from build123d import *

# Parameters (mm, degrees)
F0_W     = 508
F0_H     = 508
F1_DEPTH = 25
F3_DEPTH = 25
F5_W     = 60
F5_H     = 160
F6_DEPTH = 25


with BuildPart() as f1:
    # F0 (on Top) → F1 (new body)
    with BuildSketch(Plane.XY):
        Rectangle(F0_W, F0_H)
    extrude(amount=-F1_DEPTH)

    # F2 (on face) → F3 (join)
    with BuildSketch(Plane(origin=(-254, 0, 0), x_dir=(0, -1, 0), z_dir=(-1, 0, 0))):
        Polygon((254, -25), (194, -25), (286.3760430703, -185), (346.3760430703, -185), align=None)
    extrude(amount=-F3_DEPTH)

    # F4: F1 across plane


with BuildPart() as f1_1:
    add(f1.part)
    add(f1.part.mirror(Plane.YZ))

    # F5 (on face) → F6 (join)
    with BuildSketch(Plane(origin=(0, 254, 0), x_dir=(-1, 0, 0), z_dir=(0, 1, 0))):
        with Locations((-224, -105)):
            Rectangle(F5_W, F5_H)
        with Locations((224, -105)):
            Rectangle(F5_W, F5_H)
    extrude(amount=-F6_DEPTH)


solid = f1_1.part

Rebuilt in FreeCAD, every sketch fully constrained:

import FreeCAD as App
import Part
import Sketcher

V = App.Vector
Q = App.Units.Quantity


def add_polygon(sketch, points):
    """Adds a closed chain of lines whose ends are joined by coincident constraints."""
    first, n = sketch.GeometryCount, len(points)
    for a, b in zip(points, points[1:] + points[:1]):
        sketch.addGeometry(Part.LineSegment(App.Vector(*a, 0), App.Vector(*b, 0)), False)
    for i in range(n):
        sketch.addConstraint(Sketcher.Constraint("Coincident", first + i, 2, first + (i + 1) % n, 1))

doc = App.newDocument("Part")
body = doc.addObject("PartDesign::Body", "Body")

sketch1 = body.newObject("Sketcher::SketchObject", "Sketch")
sketch1.AttachmentSupport = (doc.getObject("XY_Plane"), [""])
sketch1.MapMode = "FlatFace"
add_polygon(sketch1, [(-254, 254), (-254, -254), (254, -254), (254, 254)])
sketch1.addConstraint(Sketcher.Constraint("Vertical", 0))
sketch1.addConstraint(Sketcher.Constraint("Horizontal", 1))
sketch1.addConstraint(Sketcher.Constraint("Vertical", 2))
sketch1.addConstraint(Sketcher.Constraint("Horizontal", 3))
sketch1.addConstraint(Sketcher.Constraint("Symmetric", 0, 2, 2, 2, -1, 1))
sketch1.addConstraint(Sketcher.Constraint("Equal", 3, 0))
sketch1.addConstraint(Sketcher.Constraint("DistanceX", 1, 1, 1, 2, Q("508 mm")))
pad1 = body.newObject("PartDesign::Pad", "Pad")
pad1.Profile = sketch1
pad1.Length = 25
pad1.Reversed = True

sketch2 = body.newObject("Sketcher::SketchObject", "Sketch001")
sketch2.AttachmentSupport = (doc.getObject("YZ_Plane"), [""])
sketch2.MapMode = "FlatFace"
sketch2.AttachmentOffset = App.Placement(V(0, 0, -254), App.Rotation())
add_polygon(sketch2, [(-254, -25), (-194, -25), (-286.376043, -185), (-346.376043, -185)])
sketch2.addConstraint(Sketcher.Constraint("Horizontal", 0))
sketch2.addConstraint(Sketcher.Constraint("Horizontal", 2))
sketch2.addConstraint(Sketcher.Constraint("Parallel", 1, 3))
sketch2.addConstraint(Sketcher.Constraint("DistanceX", 0, 1, 0, 2, Q("60 mm")))
sketch2.addConstraint(Sketcher.Constraint("Angle", 1, Q("-120 deg")))
sketch2.addConstraint(Sketcher.Constraint("DistanceX", 0, 2, -1, 1, Q("194 mm")))
sketch2.addConstraint(Sketcher.Constraint("DistanceY", 0, 2, -1, 1, Q("25 mm")))
sketch2.addConstraint(Sketcher.Constraint("DistanceY", 1, 2, -1, 1, Q("185 mm")))
pad2 = body.newObject("PartDesign::Pad", "Pad001")
pad2.Profile = sketch2
pad2.Length = 25
body2 = doc.addObject("PartDesign::Body", "Body001")
doc.recompute()

body2.BaseFeature = body
doc.recompute()

mirroring = doc.addObject("Part::Mirroring", "Mirroring")
mirroring.Source = body
mirroring.Base = V(0, 0, 0)
mirroring.Normal = V(1, 0, 0)
body3 = doc.addObject("PartDesign::Body", "Body002")
body3.BaseFeature = mirroring
boolean = body2.newObject("PartDesign::Boolean", "Boolean")
boolean.Type = "Fuse"
boolean.addObjects([body3])
doc.recompute()

sketch3 = body2.newObject("Sketcher::SketchObject", "Sketch002")
sketch3.AttachmentSupport = (doc.getObject("XZ_Plane001"), [""])
sketch3.MapMode = "FlatFace"
sketch3.AttachmentOffset = App.Placement(V(0, 0, -254), App.Rotation())
add_polygon(sketch3, [(254, -25), (254, -185), (194, -185), (194, -25)])
add_polygon(sketch3, [(-194, -25), (-194, -185), (-254, -185), (-254, -25)])
sketch3.addConstraint(Sketcher.Constraint("Vertical", 0))
sketch3.addConstraint(Sketcher.Constraint("Horizontal", 1))
sketch3.addConstraint(Sketcher.Constraint("Vertical", 2))
sketch3.addConstraint(Sketcher.Constraint("Horizontal", 3))
sketch3.addConstraint(Sketcher.Constraint("Vertical", 4))
sketch3.addConstraint(Sketcher.Constraint("Horizontal", 5))
sketch3.addConstraint(Sketcher.Constraint("Vertical", 6))
sketch3.addConstraint(Sketcher.Constraint("Horizontal", 7))
sketch3.addConstraint(Sketcher.Constraint("Symmetric", 1, 2, 4, 2, -2))
sketch3.addConstraint(Sketcher.Constraint("Symmetric", 3, 2, 6, 2, -2))
sketch3.addConstraint(Sketcher.Constraint("DistanceX", 1, 2, 1, 1, Q("60 mm")))
sketch3.addConstraint(Sketcher.Constraint("DistanceY", 0, 2, 0, 1, Q("160 mm")))
sketch3.addConstraint(Sketcher.Constraint("DistanceX", -1, 1, 0, 2, Q("254 mm")))
sketch3.addConstraint(Sketcher.Constraint("DistanceY", 0, 2, -1, 1, Q("185 mm")))
pad3 = body2.newObject("PartDesign::Pad", "Pad002")
pad3.Profile = sketch3
pad3.Length = 25
mirroring.Visibility = False

doc.recompute()
